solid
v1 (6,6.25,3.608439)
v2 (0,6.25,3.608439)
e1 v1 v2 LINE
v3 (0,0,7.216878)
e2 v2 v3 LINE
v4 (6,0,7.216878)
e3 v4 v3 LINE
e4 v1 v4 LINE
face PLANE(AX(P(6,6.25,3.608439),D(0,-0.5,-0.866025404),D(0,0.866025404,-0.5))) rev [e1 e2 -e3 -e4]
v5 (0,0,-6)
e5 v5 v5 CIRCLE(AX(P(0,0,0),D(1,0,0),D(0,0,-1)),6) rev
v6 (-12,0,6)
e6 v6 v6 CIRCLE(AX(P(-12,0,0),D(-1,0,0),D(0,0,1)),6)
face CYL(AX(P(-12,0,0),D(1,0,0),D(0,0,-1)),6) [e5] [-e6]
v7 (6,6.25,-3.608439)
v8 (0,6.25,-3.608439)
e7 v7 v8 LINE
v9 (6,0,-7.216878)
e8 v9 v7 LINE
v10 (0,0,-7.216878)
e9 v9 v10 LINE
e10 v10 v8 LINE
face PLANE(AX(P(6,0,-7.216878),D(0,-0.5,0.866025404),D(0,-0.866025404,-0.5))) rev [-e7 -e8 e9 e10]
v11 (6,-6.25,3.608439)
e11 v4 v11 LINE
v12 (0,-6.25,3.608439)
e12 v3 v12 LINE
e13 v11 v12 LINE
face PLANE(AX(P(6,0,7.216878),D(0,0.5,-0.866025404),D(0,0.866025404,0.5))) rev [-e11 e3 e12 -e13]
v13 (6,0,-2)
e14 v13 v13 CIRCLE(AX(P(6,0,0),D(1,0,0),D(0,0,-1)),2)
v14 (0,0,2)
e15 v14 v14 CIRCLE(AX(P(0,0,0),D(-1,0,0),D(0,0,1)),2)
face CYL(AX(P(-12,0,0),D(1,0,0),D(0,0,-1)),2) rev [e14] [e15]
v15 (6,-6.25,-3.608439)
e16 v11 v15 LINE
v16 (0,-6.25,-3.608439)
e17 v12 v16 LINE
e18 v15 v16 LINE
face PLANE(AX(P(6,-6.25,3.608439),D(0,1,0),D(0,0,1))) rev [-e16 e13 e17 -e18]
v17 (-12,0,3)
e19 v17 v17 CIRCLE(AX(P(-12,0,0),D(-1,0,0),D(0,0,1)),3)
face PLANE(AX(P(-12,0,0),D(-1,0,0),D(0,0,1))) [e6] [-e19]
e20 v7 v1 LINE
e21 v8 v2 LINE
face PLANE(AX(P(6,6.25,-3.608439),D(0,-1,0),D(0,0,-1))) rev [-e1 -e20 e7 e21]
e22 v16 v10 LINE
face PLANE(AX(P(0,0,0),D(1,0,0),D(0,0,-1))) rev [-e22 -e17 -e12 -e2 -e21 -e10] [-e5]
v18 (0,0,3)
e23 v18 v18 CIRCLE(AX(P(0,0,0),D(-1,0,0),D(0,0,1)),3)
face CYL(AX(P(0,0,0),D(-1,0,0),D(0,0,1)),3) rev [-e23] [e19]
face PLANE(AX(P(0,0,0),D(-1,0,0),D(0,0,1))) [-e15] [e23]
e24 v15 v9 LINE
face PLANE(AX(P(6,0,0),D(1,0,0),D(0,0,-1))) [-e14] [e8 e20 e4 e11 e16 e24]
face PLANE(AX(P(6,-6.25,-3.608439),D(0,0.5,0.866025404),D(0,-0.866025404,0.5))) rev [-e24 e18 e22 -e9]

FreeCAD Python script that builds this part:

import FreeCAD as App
import Part
import Sketcher
from FreeCAD import Vector
Q = App.Units.Quantity

doc = App.newDocument("Part")
params = doc.addObject("Spreadsheet::Sheet", "Params")
for row, (alias, value) in enumerate([
    ("pad1_length", "6 mm"),
    ("sketch2_diameter", "12 mm"),
    ("pad2_length", "12 mm"),
    ("sketch3_diameter", "6 mm"),
    ("pocket1_length", "12 mm"),
    ("sketch4_diameter", "4 mm"),
], start=1):
    params.set(f"A{row}", alias)
    params.set(f"B{row}", "=" + value)
    params.setAlias(f"B{row}", alias)

body = doc.addObject("PartDesign::Body", "Body")

sketch1 = body.newObject("Sketcher::SketchObject", "Sketch")
sketch1.AttachmentSupport = (doc.getObject("YZ_Plane"), [""])
sketch1.MapMode = "FlatFace"
sketch1.addGeometry([
    Part.LineSegment(Vector(0, -7, 0), Vector(6, -4, 0)),
    Part.LineSegment(Vector(6, -4, 0), Vector(6, 4, 0)),
    Part.LineSegment(Vector(6, 4, 0), Vector(0, 7, 0)),
    Part.LineSegment(Vector(0, 7, 0), Vector(-6, 4, 0)),
    Part.LineSegment(Vector(-6, 4, 0), Vector(-6, -4, 0)),
    Part.LineSegment(Vector(-6, -4, 0), Vector(0, -7, 0)),
], False)
sketch1.addConstraint([
    Sketcher.Constraint("Coincident", 0, 2, 1, 1),
    Sketcher.Constraint("Coincident", 1, 2, 2, 1),
    Sketcher.Constraint("Coincident", 2, 2, 3, 1),
    Sketcher.Constraint("Coincident", 3, 2, 4, 1),
    Sketcher.Constraint("Coincident", 4, 2, 5, 1),
    Sketcher.Constraint("Coincident", 5, 2, 0, 1),
    Sketcher.Constraint("Vertical", 1),
    Sketcher.Constraint("Vertical", 4),
    Sketcher.Constraint("Symmetric", 0, 2, 3, 2, -1, 1),
    Sketcher.Constraint("Symmetric", 2, 2, 5, 2, -1, 1),
    Sketcher.Constraint("PointOnObject", 2, 2, -2),
    Sketcher.Constraint("Parallel", 2, 5),
    Sketcher.Constraint("Horizontal", 1, 2, 3, 2),
    Sketcher.Constraint("Angle", 0, Q("30 deg")),
    Sketcher.Constraint("DistanceX", 3, 2, 1, 2, Q("12.5 mm")),
    Sketcher.Constraint("DistanceY", 1, 1, 1, 2, Q("7.216878 mm")),
])
pad1 = body.newObject("PartDesign::Pad", "Pad")
pad1.Profile = sketch1
pad1.setExpression("Length", "Params.pad1_length")

sketch2 = body.newObject("Sketcher::SketchObject", "Sketch001")
sketch2.AttachmentSupport = (doc.getObject("YZ_Plane"), [""])
sketch2.MapMode = "FlatFace"
sketch2.addGeometry(Part.Circle(Vector(0, 0, 0), Vector(0, 0, 1), 6), False)
sketch2.addConstraint([
    Sketcher.Constraint("Coincident", 0, 3, -1, 1),
    Sketcher.Constraint("Diameter", 0, Q("12 mm")),
])
sketch2.setExpression("Constraints[1]", "Params.sketch2_diameter")
pad2 = body.newObject("PartDesign::Pad", "Pad001")
pad2.Profile = sketch2
pad2.setExpression("Length", "Params.pad2_length")
pad2.Reversed = True

sketch3 = body.newObject("Sketcher::SketchObject", "Sketch002")
sketch3.AttachmentSupport = (doc.getObject("YZ_Plane"), [""])
sketch3.MapMode = "FlatFace"
sketch3.AttachmentOffset = App.Placement(Vector(0, 0, -12), App.Rotation())
sketch3.addGeometry(Part.Circle(Vector(0, 0, 0), Vector(0, 0, 1), 3), False)
sketch3.addConstraint([
    Sketcher.Constraint("Coincident", 0, 3, -1, 1),
    Sketcher.Constraint("Diameter", 0, Q("6 mm")),
])
sketch3.setExpression("Constraints[1]", "Params.sketch3_diameter")
pocket1 = body.newObject("PartDesign::Pocket", "Pocket")
pocket1.Profile = sketch3
pocket1.setExpression("Length", "Params.pocket1_length")
pocket1.Reversed = True

sketch4 = body.newObject("Sketcher::SketchObject", "Sketch003")
sketch4.AttachmentSupport = (doc.getObject("YZ_Plane"), [""])
sketch4.MapMode = "FlatFace"
sketch4.AttachmentOffset = App.Placement(Vector(0, 0, 6), App.Rotation())
sketch4.addGeometry(Part.Circle(Vector(0, 0, 0), Vector(0, 0, 1), 2), False)
sketch4.addConstraint([
    Sketcher.Constraint("Coincident", 0, 3, -1, 1),
    Sketcher.Constraint("Diameter", 0, Q("4 mm")),
])
sketch4.setExpression("Constraints[1]", "Params.sketch4_diameter")
pocket2 = body.newObject("PartDesign::Pocket", "Pocket001")
pocket2.Profile = sketch4
pocket2.Type = "ThroughAll"

doc.recompute()
